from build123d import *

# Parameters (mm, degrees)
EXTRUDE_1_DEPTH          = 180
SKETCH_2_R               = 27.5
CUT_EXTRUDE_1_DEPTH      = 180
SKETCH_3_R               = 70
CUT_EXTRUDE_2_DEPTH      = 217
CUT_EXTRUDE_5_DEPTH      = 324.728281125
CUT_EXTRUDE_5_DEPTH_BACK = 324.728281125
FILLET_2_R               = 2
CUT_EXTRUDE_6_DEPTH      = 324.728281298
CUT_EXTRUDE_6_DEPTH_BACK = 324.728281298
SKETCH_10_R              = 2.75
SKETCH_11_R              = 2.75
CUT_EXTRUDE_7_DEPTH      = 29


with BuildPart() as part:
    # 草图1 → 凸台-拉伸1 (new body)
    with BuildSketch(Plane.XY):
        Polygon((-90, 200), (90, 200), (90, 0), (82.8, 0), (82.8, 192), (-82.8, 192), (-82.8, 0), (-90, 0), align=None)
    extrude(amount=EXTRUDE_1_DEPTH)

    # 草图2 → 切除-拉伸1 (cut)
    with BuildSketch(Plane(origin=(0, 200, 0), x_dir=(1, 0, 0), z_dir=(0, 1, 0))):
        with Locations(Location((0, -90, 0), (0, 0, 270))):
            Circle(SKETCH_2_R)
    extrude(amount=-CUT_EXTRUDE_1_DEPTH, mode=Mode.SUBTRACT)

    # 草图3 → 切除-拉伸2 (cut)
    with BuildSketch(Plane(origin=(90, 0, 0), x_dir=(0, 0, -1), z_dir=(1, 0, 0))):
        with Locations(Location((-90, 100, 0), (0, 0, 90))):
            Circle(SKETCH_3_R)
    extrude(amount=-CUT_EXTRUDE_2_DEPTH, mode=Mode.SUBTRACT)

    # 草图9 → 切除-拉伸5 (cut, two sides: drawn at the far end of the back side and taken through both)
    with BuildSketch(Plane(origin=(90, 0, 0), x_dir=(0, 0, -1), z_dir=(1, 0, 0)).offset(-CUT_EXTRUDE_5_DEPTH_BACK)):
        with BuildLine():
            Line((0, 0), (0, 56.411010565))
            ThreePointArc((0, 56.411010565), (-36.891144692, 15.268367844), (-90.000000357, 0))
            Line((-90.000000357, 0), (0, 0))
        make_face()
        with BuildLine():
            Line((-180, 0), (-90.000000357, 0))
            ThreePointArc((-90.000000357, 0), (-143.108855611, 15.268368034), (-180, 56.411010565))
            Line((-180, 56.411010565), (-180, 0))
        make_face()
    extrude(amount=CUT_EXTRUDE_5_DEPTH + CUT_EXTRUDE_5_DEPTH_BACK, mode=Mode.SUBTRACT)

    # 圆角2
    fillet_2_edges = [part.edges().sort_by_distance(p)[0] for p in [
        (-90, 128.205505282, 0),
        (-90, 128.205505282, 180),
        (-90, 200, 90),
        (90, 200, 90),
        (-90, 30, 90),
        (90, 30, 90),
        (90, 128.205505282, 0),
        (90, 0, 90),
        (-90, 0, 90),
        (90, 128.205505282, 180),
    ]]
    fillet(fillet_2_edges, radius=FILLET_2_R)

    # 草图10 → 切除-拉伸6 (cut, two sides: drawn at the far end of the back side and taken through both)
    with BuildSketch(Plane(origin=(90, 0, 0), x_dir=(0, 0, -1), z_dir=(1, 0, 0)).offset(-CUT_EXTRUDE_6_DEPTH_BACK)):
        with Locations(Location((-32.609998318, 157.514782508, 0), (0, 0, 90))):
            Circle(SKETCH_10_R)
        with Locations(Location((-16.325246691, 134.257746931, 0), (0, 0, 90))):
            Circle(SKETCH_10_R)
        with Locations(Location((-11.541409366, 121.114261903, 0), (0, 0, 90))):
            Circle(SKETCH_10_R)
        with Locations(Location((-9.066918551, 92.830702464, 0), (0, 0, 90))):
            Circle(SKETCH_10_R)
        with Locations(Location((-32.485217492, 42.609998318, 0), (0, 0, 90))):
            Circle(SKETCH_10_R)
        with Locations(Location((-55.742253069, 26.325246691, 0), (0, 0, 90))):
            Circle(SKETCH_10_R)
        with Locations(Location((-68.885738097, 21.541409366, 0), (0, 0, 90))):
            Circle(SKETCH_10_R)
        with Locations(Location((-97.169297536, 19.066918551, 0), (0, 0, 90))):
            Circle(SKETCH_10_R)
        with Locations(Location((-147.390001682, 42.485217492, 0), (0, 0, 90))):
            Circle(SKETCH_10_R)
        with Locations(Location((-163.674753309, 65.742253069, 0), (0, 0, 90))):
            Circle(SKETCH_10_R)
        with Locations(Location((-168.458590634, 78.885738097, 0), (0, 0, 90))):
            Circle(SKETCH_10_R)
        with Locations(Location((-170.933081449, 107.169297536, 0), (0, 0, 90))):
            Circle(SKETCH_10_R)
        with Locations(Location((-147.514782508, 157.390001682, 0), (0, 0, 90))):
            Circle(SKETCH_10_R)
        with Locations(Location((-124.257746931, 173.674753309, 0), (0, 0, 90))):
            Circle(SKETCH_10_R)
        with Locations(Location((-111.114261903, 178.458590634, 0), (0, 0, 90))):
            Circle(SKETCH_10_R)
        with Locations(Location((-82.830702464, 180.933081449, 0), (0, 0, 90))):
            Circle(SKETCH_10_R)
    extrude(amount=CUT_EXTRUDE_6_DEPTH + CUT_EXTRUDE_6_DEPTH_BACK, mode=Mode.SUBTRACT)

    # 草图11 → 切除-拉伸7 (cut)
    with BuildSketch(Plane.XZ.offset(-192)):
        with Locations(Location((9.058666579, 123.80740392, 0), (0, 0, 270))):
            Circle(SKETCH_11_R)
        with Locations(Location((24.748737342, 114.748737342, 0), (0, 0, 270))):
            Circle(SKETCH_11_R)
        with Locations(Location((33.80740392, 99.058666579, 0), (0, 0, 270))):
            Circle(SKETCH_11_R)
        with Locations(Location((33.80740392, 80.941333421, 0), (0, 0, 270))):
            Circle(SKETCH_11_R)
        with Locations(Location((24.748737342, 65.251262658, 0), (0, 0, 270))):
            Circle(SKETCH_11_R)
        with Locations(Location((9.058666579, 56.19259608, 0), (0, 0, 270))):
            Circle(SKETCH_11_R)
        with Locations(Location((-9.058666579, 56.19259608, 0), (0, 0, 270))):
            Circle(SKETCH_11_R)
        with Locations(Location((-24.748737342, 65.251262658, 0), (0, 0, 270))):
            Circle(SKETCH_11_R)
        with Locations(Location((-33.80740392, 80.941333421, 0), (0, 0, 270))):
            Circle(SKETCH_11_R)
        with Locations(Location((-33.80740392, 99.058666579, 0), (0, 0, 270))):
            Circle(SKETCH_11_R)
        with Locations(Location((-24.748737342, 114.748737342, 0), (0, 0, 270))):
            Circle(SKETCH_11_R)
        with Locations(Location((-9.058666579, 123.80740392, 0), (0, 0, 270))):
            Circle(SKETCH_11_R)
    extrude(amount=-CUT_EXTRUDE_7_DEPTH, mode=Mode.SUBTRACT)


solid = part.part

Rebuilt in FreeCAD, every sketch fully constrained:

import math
import FreeCAD as App
import Part
import Sketcher
from FreeCAD import Vector
Q = App.Units.Quantity


def edges_at(feature, points):
    """Names of the edges that pass closest to the given points."""
    edges = feature.Shape.Edges
    near = lambda p: min(range(len(edges)), key=lambda i: edges[i].distToShape(Part.Vertex(*p))[0])
    return sorted({f"Edge{near(p) + 1}" for p in points})


def add_polygon(sketch, points):
    """Adds a closed chain of lines whose ends are joined by coincident constraints."""
    first, n = sketch.GeometryCount, len(points)
    for a, b in zip(points, points[1:] + points[:1]):
        sketch.addGeometry(Part.LineSegment(App.Vector(*a, 0), App.Vector(*b, 0)), False)
    for i in range(n):
        sketch.addConstraint(Sketcher.Constraint("Coincident", first + i, 2, first + (i + 1) % n, 1))

doc = App.newDocument("Part")
body = doc.addObject("PartDesign::Body", "Body")

# Sketch on XY plane
sketch1 = doc.addObject("Sketcher::SketchObject", "Sketch")
body.addObject(sketch1)
sketch1.AttachmentSupport = (doc.XY_Plane, [""])
sketch1.MapMode = "FlatFace"
add_polygon(sketch1, [(90, 200), (-90, 200), (-90, 0), (-83, 0), (-83, 192), (83, 192), (83, 0), (90, 0)])  # lines 0-7
sketch1.addConstraint([
    Sketcher.Constraint("Horizontal", 0),
    Sketcher.Constraint("Vertical", 1),
    Sketcher.Constraint("Horizontal", 2),
    Sketcher.Constraint("Vertical", 3),
    Sketcher.Constraint("Horizontal", 4),
    Sketcher.Constraint("Vertical", 5),
    Sketcher.Constraint("Horizontal", 6),
    Sketcher.Constraint("Vertical", 7),
    Sketcher.Constraint("Symmetric", 2, 2, 5, 2, -1, 1),
    Sketcher.Constraint("Symmetric", 1, 2, 6, 2, -2),
    Sketcher.Constraint("DistanceX", 0, 2, 0, 1, Q("180 mm")),
    Sketcher.Constraint("DistanceY", 1, 2, 1, 1, Q("200 mm")),
    Sketcher.Constraint("DistanceY", 3, 1, 3, 2, Q("192 mm")),
    Sketcher.Constraint("DistanceX", 2, 1, 2, 2, Q("7.2 mm")),
])
pad1 = doc.addObject("PartDesign::Pad", "Pad")
body.addObject(pad1)
pad1.Profile = sketch1
pad1.Length = 180

# Sketch on XZ plane
sketch2 = doc.addObject("Sketcher::SketchObject", "Sketch001")
body.addObject(sketch2)
sketch2.AttachmentSupport = (doc.XZ_Plane, [""])
sketch2.MapMode = "FlatFace"
sketch2.AttachmentOffset = App.Placement(Vector(0, 0, -200), App.Rotation())
sketch2.addGeometry(Part.Circle(Vector(0, 90, 0), Vector(0, 0, 1), 28), False)
sketch2.addConstraint([
    Sketcher.Constraint("PointOnObject", 0, 3, -2),
    Sketcher.Constraint("Diameter", 0, Q("55 mm")),
    Sketcher.Constraint("DistanceY", -1, 1, 0, 3, Q("90 mm")),
])
pocket1 = doc.addObject("PartDesign::Pocket", "Pocket")
body.addObject(pocket1)
pocket1.Profile = sketch2
pocket1.Length = 180
pocket1.Reversed = True

# Sketch on YZ plane
sketch3 = doc.addObject("Sketcher::SketchObject", "Sketch002")
body.addObject(sketch3)
sketch3.AttachmentSupport = (doc.YZ_Plane, [""])
sketch3.MapMode = "FlatFace"
sketch3.AttachmentOffset = App.Placement(Vector(0, 0, 90), App.Rotation())
sketch3.addGeometry(Part.Circle(Vector(100, 90, 0), Vector(0, 0, 1), 70), False)
sketch3.addConstraint([
    Sketcher.Constraint("Diameter", 0, Q("140 mm")),
    Sketcher.Constraint("DistanceX", -1, 1, 0, 3, Q("100 mm")),
    Sketcher.Constraint("DistanceY", -1, 1, 0, 3, Q("90 mm")),
])
pocket2 = doc.addObject("PartDesign::Pocket", "Pocket001")
body.addObject(pocket2)
pocket2.Profile = sketch3
pocket2.Length = 217

# Sketch on YZ plane
sketch4 = doc.addObject("Sketcher::SketchObject", "Sketch003")
body.addObject(sketch4)
sketch4.AttachmentSupport = (doc.YZ_Plane, [""])
sketch4.MapMode = "FlatFace"
sketch4.AttachmentOffset = App.Placement(Vector(0, 0, 90), App.Rotation())
sketch4.addGeometry([
    Part.LineSegment(Vector(0, 0, 0), Vector(56, 0, 0)),  # 0
    Part.ArcOfCircle(Part.Circle(Vector(100, 90, 0), Vector(0, 0, 1), 100), math.radians(180), math.radians(244)),  # 1
    Part.LineSegment(Vector(0, 90, 0), Vector(0, 0, 0)),  # 2
    Part.LineSegment(Vector(0, 180, 0), Vector(0, 90, 0)),  # 3
    Part.ArcOfCircle(Part.Circle(Vector(100, 90, 0), Vector(0, 0, 1), 100), math.radians(116), math.radians(180)),  # 4
    Part.LineSegment(Vector(56, 180, 0), Vector(0, 180, 0)),  # 5
], False)
sketch4.addConstraint([
    Sketcher.Constraint("Coincident", 0, 2, 1, 2),
    Sketcher.Constraint("Tangent", 1, 1, 2, 1),
    Sketcher.Constraint("Coincident", 2, 2, 0, 1),
    Sketcher.Constraint("Tangent", 3, 2, 4, 2),
    Sketcher.Constraint("Coincident", 4, 1, 5, 1),
    Sketcher.Constraint("Coincident", 5, 2, 3, 1),
    Sketcher.Constraint("Horizontal", 0),
    Sketcher.Constraint("Vertical", 2),
    Sketcher.Constraint("Vertical", 3),
    Sketcher.Constraint("Horizontal", 5),
    Sketcher.Constraint("Coincident", 2, 2, -1, 1),
    Sketcher.Constraint("Coincident", 4, 3, 1, 3),
    Sketcher.Constraint("Equal", 1, 4),
    Sketcher.Constraint("Vertical", 0, 2, 4, 1),
    Sketcher.Constraint("Radius", 1, Q("100 mm")),
    Sketcher.Constraint("DistanceY", 2, 2, 2, 1, Q("90 mm")),
])
pocket3 = doc.addObject("PartDesign::Pocket", "Pocket002")
body.addObject(pocket3)
pocket3.Profile = sketch4
pocket3.Type = "ThroughAll"
pocket3.Midplane = True
doc.recompute()

fillet = doc.addObject("PartDesign::Fillet", "Fillet")
body.addObject(fillet)
fillet.Base = (pocket3, edges_at(pocket3, [
    (-90, 128.206, 0),
    (-90, 128.206, 180),
    (-90, 200, 90),
    (90, 200, 90),
    (-90, 30, 90),
    (90, 30, 90),
    (90, 128.206, 0),
    (90, 15.268, 36.891),
    (-90, 15.268, 36.891),
    (90, 128.206, 180),
]))
fillet.Radius = 2

# Sketch on YZ plane
sketch5 = doc.addObject("Sketcher::SketchObject", "Sketch004")
body.addObject(sketch5)
sketch5.AttachmentSupport = (doc.YZ_Plane, [""])
sketch5.MapMode = "FlatFace"
sketch5.AttachmentOffset = App.Placement(Vector(0, 0, 90), App.Rotation())
sketch5.addGeometry([
    Part.Circle(Vector(157.5, 32.6, 0), Vector(0, 0, 1), 2.8),  # 0
    Part.Circle(Vector(134.3, 16.3, 0), Vector(0, 0, 1), 2.8),  # 1
    Part.Circle(Vector(121.1, 11.5, 0), Vector(0, 0, 1), 2.8),  # 2
    Part.Circle(Vector(92.8, 9.1, 0), Vector(0, 0, 1), 2.8),  # 3
    Part.Circle(Vector(42.6, 32.5, 0), Vector(0, 0, 1), 2.8),  # 4
    Part.Circle(Vector(26.3, 55.7, 0), Vector(0, 0, 1), 2.8),  # 5
    Part.Circle(Vector(21.5, 68.9, 0), Vector(0, 0, 1), 2.8),  # 6
    Part.Circle(Vector(19.1, 97.2, 0), Vector(0, 0, 1), 2.8),  # 7
    Part.Circle(Vector(42.5, 147.4, 0), Vector(0, 0, 1), 2.8),  # 8
    Part.Circle(Vector(65.7, 163.7, 0), Vector(0, 0, 1), 2.8),  # 9
    Part.Circle(Vector(78.9, 168.5, 0), Vector(0, 0, 1), 2.8),  # 10
    Part.Circle(Vector(107.2, 170.9, 0), Vector(0, 0, 1), 2.8),  # 11
    Part.Circle(Vector(157.4, 147.5, 0), Vector(0, 0, 1), 2.8),  # 12
    Part.Circle(Vector(173.7, 124.3, 0), Vector(0, 0, 1), 2.8),  # 13
    Part.Circle(Vector(178.5, 111.1, 0), Vector(0, 0, 1), 2.8),  # 14
    Part.Circle(Vector(180.9, 82.8, 0), Vector(0, 0, 1), 2.8),  # 15
], False)
sketch5.addConstraint([
    Sketcher.Constraint("Equal", 0, 1),
    Sketcher.Constraint("Equal", 1, 2),
    Sketcher.Constraint("Equal", 2, 3),
    Sketcher.Constraint("Equal", 3, 4),
    Sketcher.Constraint("Equal", 4, 5),
    Sketcher.Constraint("Equal", 5, 6),
    Sketcher.Constraint("Equal", 6, 7),
    Sketcher.Constraint("Equal", 7, 8),
    Sketcher.Constraint("Equal", 8, 9),
    Sketcher.Constraint("Equal", 9, 10),
    Sketcher.Constraint("Equal", 10, 11),
    Sketcher.Constraint("Equal", 11, 12),
    Sketcher.Constraint("Equal", 12, 13),
    Sketcher.Constraint("Equal", 13, 14),
    Sketcher.Constraint("Equal", 14, 15),
    Sketcher.Constraint("Diameter", 0, Q("5.5 mm")),
    Sketcher.Constraint("DistanceY", -1, 1, 0, 3, Q("32.609998 mm")),
    Sketcher.Constraint("DistanceX", -1, 1, 4, 3, Q("42.609998 mm")),
    Sketcher.Constraint("DistanceY", -1, 1, 8, 3, Q("147.390002 mm")),
    Sketcher.Constraint("DistanceX", -1, 1, 12, 3, Q("157.390002 mm")),
    Sketcher.Constraint("DistanceY", 3, 3, 4, 3, Q("23.418299 mm")),
    Sketcher.Constraint("DistanceX", 5, 3, 1, 3, Q("107.9325 mm")),
    Sketcher.Constraint("DistanceX", 7, 3, 8, 3, Q("23.418299 mm")),
    Sketcher.Constraint("DistanceY", 5, 3, 9, 3, Q("107.9325 mm")),
    Sketcher.Constraint("DistanceY", 12, 3, 11, 3, Q("23.418299 mm")),
    Sketcher.Constraint("DistanceY", 1, 3, 13, 3, Q("107.9325 mm")),
    Sketcher.Constraint("DistanceX", 0, 3, 15, 3, Q("23.418299 mm")),
    Sketcher.Constraint("DistanceX", -1, 1, 2, 3, Q("121.114262 mm")),
    Sketcher.Constraint("DistanceY", -1, 1, 2, 3, Q("11.541409 mm")),
    Sketcher.Constraint("DistanceY", -1, 1, 3, 3, Q("9.066919 mm")),
    Sketcher.Constraint("DistanceX", -1, 1, 6, 3, Q("21.541409 mm")),
    Sketcher.Constraint("DistanceY", -1, 1, 6, 3, Q("68.885738 mm")),
    Sketcher.Constraint("DistanceX", -1, 1, 7, 3, Q("19.066919 mm")),
    Sketcher.Constraint("DistanceX", -1, 1, 10, 3, Q("78.885738 mm")),
    Sketcher.Constraint("DistanceY", -1, 1, 10, 3, Q("168.458591 mm")),
    Sketcher.Constraint("DistanceY", -1, 1, 11, 3, Q("170.933081 mm")),
    Sketcher.Constraint("DistanceX", -1, 1, 14, 3, Q("178.458591 mm")),
    Sketcher.Constraint("DistanceY", -1, 1, 14, 3, Q("111.114262 mm")),
    Sketcher.Constraint("DistanceX", -1, 1, 15, 3, Q("180.933081 mm")),
    Sketcher.Constraint("DistanceY", 1, 3, 0, 3, Q("16.284752 mm")),
    Sketcher.Constraint("DistanceX", 3, 3, 2, 3, Q("28.283559 mm")),
    Sketcher.Constraint("DistanceX", 4, 3, 1, 3, Q("91.647749 mm")),
    Sketcher.Constraint("DistanceY", 6, 3, 7, 3, Q("28.283559 mm")),
    Sketcher.Constraint("DistanceY", 5, 3, 8, 3, Q("91.647749 mm")),
    Sketcher.Constraint("DistanceX", 10, 3, 11, 3, Q("28.283559 mm")),
    Sketcher.Constraint("DistanceX", 9, 3, 12, 3, Q("91.647749 mm")),
    Sketcher.Constraint("DistanceX", 12, 3, 13, 3, Q("16.284752 mm")),
    Sketcher.Constraint("DistanceY", 15, 3, 14, 3, Q("28.283559 mm")),
])
pocket4 = doc.addObject("PartDesign::Pocket", "Pocket003")
body.addObject(pocket4)
pocket4.Profile = sketch5
pocket4.Type = "ThroughAll"
pocket4.Midplane = True

# Sketch on XZ plane
sketch6 = doc.addObject("Sketcher::SketchObject", "Sketch005")
body.addObject(sketch6)
sketch6.AttachmentSupport = (doc.XZ_Plane, [""])
sketch6.MapMode = "FlatFace"
sketch6.AttachmentOffset = App.Placement(Vector(0, 0, -192), App.Rotation())
sketch6.addGeometry([
    Part.Circle(Vector(9.1, 123.8, 0), Vector(0, 0, 1), 2.8),  # 0
    Part.Circle(Vector(24.7, 114.7, 0), Vector(0, 0, 1), 2.8),  # 1
    Part.Circle(Vector(33.8, 99.1, 0), Vector(0, 0, 1), 2.8),  # 2
    Part.Circle(Vector(33.8, 80.9, 0), Vector(0, 0, 1), 2.8),  # 3
    Part.Circle(Vector(24.7, 65.3, 0), Vector(0, 0, 1), 2.8),  # 4
    Part.Circle(Vector(9.1, 56.2, 0), Vector(0, 0, 1), 2.8),  # 5
    Part.Circle(Vector(-9.1, 56.2, 0), Vector(0, 0, 1), 2.8),  # 6
    Part.Circle(Vector(-24.7, 65.3, 0), Vector(0, 0, 1), 2.8),  # 7
    Part.Circle(Vector(-33.8, 80.9, 0), Vector(0, 0, 1), 2.8),  # 8
    Part.Circle(Vector(-33.8, 99.1, 0), Vector(0, 0, 1), 2.8),  # 9
    Part.Circle(Vector(-24.7, 114.7, 0), Vector(0, 0, 1), 2.8),  # 10
    Part.Circle(Vector(-9.1, 123.8, 0), Vector(0, 0, 1), 2.8),  # 11
], False)
sketch6.addConstraint([
    Sketcher.Constraint("Equal", 0, 1),
    Sketcher.Constraint("Equal", 1, 2),
    Sketcher.Constraint("Equal", 2, 3),
    Sketcher.Constraint("Equal", 3, 4),
    Sketcher.Constraint("Equal", 4, 5),
    Sketcher.Constraint("Equal", 5, 6),
    Sketcher.Constraint("Equal", 6, 7),
    Sketcher.Constraint("Equal", 7, 8),
    Sketcher.Constraint("Equal", 8, 9),
    Sketcher.Constraint("Equal", 9, 10),
    Sketcher.Constraint("Equal", 10, 11),
    Sketcher.Constraint("Symmetric", 5, 3, 6, 3, -2),
    Sketcher.Constraint("Symmetric", 4, 3, 7, 3, -2),
    Sketcher.Constraint("Symmetric", 3, 3, 8, 3, -2),
    Sketcher.Constraint("Symmetric", 2, 3, 9, 3, -2),
    Sketcher.Constraint("Symmetric", 1, 3, 10, 3, -2),
    Sketcher.Constraint("Symmetric", 0, 3, 11, 3, -2),
    Sketcher.Constraint("Vertical", 2, 3, 3, 3),
    Sketcher.Constraint("Vertical", 1, 3, 4, 3),
    Sketcher.Constraint("Vertical", 0, 3, 5, 3),
    Sketcher.Constraint("Diameter", 0, Q("5.5 mm")),
    Sketcher.Constraint("DistanceX", 0, 3, 1, 3, Q("15.690071 mm")),
    Sketcher.Constraint("DistanceY", 2, 3, 1, 3, Q("15.690071 mm")),
    Sketcher.Constraint("DistanceY", 3, 3, 0, 3, Q("42.86607 mm")),
    Sketcher.Constraint("DistanceY", 4, 3, 3, 3, Q("15.690071 mm")),
    Sketcher.Constraint("DistanceY", 5, 3, 2, 3, Q("42.86607 mm")),
    Sketcher.Constraint("DistanceX", 6, 3, 3, 3, Q("42.86607 mm")),
    Sketcher.Constraint("DistanceX", -1, 1, 0, 3, Q("9.058667 mm")),
    Sketcher.Constraint("DistanceY", -1, 1, 0, 3, Q("123.807404 mm")),
    Sketcher.Constraint("DistanceY", -1, 1, 1, 3, Q("114.748737 mm")),
])
pocket5 = doc.addObject("PartDesign::Pocket", "Pocket004")
body.addObject(pocket5)
pocket5.Profile = sketch6
pocket5.Length = 29

doc.recompute()
